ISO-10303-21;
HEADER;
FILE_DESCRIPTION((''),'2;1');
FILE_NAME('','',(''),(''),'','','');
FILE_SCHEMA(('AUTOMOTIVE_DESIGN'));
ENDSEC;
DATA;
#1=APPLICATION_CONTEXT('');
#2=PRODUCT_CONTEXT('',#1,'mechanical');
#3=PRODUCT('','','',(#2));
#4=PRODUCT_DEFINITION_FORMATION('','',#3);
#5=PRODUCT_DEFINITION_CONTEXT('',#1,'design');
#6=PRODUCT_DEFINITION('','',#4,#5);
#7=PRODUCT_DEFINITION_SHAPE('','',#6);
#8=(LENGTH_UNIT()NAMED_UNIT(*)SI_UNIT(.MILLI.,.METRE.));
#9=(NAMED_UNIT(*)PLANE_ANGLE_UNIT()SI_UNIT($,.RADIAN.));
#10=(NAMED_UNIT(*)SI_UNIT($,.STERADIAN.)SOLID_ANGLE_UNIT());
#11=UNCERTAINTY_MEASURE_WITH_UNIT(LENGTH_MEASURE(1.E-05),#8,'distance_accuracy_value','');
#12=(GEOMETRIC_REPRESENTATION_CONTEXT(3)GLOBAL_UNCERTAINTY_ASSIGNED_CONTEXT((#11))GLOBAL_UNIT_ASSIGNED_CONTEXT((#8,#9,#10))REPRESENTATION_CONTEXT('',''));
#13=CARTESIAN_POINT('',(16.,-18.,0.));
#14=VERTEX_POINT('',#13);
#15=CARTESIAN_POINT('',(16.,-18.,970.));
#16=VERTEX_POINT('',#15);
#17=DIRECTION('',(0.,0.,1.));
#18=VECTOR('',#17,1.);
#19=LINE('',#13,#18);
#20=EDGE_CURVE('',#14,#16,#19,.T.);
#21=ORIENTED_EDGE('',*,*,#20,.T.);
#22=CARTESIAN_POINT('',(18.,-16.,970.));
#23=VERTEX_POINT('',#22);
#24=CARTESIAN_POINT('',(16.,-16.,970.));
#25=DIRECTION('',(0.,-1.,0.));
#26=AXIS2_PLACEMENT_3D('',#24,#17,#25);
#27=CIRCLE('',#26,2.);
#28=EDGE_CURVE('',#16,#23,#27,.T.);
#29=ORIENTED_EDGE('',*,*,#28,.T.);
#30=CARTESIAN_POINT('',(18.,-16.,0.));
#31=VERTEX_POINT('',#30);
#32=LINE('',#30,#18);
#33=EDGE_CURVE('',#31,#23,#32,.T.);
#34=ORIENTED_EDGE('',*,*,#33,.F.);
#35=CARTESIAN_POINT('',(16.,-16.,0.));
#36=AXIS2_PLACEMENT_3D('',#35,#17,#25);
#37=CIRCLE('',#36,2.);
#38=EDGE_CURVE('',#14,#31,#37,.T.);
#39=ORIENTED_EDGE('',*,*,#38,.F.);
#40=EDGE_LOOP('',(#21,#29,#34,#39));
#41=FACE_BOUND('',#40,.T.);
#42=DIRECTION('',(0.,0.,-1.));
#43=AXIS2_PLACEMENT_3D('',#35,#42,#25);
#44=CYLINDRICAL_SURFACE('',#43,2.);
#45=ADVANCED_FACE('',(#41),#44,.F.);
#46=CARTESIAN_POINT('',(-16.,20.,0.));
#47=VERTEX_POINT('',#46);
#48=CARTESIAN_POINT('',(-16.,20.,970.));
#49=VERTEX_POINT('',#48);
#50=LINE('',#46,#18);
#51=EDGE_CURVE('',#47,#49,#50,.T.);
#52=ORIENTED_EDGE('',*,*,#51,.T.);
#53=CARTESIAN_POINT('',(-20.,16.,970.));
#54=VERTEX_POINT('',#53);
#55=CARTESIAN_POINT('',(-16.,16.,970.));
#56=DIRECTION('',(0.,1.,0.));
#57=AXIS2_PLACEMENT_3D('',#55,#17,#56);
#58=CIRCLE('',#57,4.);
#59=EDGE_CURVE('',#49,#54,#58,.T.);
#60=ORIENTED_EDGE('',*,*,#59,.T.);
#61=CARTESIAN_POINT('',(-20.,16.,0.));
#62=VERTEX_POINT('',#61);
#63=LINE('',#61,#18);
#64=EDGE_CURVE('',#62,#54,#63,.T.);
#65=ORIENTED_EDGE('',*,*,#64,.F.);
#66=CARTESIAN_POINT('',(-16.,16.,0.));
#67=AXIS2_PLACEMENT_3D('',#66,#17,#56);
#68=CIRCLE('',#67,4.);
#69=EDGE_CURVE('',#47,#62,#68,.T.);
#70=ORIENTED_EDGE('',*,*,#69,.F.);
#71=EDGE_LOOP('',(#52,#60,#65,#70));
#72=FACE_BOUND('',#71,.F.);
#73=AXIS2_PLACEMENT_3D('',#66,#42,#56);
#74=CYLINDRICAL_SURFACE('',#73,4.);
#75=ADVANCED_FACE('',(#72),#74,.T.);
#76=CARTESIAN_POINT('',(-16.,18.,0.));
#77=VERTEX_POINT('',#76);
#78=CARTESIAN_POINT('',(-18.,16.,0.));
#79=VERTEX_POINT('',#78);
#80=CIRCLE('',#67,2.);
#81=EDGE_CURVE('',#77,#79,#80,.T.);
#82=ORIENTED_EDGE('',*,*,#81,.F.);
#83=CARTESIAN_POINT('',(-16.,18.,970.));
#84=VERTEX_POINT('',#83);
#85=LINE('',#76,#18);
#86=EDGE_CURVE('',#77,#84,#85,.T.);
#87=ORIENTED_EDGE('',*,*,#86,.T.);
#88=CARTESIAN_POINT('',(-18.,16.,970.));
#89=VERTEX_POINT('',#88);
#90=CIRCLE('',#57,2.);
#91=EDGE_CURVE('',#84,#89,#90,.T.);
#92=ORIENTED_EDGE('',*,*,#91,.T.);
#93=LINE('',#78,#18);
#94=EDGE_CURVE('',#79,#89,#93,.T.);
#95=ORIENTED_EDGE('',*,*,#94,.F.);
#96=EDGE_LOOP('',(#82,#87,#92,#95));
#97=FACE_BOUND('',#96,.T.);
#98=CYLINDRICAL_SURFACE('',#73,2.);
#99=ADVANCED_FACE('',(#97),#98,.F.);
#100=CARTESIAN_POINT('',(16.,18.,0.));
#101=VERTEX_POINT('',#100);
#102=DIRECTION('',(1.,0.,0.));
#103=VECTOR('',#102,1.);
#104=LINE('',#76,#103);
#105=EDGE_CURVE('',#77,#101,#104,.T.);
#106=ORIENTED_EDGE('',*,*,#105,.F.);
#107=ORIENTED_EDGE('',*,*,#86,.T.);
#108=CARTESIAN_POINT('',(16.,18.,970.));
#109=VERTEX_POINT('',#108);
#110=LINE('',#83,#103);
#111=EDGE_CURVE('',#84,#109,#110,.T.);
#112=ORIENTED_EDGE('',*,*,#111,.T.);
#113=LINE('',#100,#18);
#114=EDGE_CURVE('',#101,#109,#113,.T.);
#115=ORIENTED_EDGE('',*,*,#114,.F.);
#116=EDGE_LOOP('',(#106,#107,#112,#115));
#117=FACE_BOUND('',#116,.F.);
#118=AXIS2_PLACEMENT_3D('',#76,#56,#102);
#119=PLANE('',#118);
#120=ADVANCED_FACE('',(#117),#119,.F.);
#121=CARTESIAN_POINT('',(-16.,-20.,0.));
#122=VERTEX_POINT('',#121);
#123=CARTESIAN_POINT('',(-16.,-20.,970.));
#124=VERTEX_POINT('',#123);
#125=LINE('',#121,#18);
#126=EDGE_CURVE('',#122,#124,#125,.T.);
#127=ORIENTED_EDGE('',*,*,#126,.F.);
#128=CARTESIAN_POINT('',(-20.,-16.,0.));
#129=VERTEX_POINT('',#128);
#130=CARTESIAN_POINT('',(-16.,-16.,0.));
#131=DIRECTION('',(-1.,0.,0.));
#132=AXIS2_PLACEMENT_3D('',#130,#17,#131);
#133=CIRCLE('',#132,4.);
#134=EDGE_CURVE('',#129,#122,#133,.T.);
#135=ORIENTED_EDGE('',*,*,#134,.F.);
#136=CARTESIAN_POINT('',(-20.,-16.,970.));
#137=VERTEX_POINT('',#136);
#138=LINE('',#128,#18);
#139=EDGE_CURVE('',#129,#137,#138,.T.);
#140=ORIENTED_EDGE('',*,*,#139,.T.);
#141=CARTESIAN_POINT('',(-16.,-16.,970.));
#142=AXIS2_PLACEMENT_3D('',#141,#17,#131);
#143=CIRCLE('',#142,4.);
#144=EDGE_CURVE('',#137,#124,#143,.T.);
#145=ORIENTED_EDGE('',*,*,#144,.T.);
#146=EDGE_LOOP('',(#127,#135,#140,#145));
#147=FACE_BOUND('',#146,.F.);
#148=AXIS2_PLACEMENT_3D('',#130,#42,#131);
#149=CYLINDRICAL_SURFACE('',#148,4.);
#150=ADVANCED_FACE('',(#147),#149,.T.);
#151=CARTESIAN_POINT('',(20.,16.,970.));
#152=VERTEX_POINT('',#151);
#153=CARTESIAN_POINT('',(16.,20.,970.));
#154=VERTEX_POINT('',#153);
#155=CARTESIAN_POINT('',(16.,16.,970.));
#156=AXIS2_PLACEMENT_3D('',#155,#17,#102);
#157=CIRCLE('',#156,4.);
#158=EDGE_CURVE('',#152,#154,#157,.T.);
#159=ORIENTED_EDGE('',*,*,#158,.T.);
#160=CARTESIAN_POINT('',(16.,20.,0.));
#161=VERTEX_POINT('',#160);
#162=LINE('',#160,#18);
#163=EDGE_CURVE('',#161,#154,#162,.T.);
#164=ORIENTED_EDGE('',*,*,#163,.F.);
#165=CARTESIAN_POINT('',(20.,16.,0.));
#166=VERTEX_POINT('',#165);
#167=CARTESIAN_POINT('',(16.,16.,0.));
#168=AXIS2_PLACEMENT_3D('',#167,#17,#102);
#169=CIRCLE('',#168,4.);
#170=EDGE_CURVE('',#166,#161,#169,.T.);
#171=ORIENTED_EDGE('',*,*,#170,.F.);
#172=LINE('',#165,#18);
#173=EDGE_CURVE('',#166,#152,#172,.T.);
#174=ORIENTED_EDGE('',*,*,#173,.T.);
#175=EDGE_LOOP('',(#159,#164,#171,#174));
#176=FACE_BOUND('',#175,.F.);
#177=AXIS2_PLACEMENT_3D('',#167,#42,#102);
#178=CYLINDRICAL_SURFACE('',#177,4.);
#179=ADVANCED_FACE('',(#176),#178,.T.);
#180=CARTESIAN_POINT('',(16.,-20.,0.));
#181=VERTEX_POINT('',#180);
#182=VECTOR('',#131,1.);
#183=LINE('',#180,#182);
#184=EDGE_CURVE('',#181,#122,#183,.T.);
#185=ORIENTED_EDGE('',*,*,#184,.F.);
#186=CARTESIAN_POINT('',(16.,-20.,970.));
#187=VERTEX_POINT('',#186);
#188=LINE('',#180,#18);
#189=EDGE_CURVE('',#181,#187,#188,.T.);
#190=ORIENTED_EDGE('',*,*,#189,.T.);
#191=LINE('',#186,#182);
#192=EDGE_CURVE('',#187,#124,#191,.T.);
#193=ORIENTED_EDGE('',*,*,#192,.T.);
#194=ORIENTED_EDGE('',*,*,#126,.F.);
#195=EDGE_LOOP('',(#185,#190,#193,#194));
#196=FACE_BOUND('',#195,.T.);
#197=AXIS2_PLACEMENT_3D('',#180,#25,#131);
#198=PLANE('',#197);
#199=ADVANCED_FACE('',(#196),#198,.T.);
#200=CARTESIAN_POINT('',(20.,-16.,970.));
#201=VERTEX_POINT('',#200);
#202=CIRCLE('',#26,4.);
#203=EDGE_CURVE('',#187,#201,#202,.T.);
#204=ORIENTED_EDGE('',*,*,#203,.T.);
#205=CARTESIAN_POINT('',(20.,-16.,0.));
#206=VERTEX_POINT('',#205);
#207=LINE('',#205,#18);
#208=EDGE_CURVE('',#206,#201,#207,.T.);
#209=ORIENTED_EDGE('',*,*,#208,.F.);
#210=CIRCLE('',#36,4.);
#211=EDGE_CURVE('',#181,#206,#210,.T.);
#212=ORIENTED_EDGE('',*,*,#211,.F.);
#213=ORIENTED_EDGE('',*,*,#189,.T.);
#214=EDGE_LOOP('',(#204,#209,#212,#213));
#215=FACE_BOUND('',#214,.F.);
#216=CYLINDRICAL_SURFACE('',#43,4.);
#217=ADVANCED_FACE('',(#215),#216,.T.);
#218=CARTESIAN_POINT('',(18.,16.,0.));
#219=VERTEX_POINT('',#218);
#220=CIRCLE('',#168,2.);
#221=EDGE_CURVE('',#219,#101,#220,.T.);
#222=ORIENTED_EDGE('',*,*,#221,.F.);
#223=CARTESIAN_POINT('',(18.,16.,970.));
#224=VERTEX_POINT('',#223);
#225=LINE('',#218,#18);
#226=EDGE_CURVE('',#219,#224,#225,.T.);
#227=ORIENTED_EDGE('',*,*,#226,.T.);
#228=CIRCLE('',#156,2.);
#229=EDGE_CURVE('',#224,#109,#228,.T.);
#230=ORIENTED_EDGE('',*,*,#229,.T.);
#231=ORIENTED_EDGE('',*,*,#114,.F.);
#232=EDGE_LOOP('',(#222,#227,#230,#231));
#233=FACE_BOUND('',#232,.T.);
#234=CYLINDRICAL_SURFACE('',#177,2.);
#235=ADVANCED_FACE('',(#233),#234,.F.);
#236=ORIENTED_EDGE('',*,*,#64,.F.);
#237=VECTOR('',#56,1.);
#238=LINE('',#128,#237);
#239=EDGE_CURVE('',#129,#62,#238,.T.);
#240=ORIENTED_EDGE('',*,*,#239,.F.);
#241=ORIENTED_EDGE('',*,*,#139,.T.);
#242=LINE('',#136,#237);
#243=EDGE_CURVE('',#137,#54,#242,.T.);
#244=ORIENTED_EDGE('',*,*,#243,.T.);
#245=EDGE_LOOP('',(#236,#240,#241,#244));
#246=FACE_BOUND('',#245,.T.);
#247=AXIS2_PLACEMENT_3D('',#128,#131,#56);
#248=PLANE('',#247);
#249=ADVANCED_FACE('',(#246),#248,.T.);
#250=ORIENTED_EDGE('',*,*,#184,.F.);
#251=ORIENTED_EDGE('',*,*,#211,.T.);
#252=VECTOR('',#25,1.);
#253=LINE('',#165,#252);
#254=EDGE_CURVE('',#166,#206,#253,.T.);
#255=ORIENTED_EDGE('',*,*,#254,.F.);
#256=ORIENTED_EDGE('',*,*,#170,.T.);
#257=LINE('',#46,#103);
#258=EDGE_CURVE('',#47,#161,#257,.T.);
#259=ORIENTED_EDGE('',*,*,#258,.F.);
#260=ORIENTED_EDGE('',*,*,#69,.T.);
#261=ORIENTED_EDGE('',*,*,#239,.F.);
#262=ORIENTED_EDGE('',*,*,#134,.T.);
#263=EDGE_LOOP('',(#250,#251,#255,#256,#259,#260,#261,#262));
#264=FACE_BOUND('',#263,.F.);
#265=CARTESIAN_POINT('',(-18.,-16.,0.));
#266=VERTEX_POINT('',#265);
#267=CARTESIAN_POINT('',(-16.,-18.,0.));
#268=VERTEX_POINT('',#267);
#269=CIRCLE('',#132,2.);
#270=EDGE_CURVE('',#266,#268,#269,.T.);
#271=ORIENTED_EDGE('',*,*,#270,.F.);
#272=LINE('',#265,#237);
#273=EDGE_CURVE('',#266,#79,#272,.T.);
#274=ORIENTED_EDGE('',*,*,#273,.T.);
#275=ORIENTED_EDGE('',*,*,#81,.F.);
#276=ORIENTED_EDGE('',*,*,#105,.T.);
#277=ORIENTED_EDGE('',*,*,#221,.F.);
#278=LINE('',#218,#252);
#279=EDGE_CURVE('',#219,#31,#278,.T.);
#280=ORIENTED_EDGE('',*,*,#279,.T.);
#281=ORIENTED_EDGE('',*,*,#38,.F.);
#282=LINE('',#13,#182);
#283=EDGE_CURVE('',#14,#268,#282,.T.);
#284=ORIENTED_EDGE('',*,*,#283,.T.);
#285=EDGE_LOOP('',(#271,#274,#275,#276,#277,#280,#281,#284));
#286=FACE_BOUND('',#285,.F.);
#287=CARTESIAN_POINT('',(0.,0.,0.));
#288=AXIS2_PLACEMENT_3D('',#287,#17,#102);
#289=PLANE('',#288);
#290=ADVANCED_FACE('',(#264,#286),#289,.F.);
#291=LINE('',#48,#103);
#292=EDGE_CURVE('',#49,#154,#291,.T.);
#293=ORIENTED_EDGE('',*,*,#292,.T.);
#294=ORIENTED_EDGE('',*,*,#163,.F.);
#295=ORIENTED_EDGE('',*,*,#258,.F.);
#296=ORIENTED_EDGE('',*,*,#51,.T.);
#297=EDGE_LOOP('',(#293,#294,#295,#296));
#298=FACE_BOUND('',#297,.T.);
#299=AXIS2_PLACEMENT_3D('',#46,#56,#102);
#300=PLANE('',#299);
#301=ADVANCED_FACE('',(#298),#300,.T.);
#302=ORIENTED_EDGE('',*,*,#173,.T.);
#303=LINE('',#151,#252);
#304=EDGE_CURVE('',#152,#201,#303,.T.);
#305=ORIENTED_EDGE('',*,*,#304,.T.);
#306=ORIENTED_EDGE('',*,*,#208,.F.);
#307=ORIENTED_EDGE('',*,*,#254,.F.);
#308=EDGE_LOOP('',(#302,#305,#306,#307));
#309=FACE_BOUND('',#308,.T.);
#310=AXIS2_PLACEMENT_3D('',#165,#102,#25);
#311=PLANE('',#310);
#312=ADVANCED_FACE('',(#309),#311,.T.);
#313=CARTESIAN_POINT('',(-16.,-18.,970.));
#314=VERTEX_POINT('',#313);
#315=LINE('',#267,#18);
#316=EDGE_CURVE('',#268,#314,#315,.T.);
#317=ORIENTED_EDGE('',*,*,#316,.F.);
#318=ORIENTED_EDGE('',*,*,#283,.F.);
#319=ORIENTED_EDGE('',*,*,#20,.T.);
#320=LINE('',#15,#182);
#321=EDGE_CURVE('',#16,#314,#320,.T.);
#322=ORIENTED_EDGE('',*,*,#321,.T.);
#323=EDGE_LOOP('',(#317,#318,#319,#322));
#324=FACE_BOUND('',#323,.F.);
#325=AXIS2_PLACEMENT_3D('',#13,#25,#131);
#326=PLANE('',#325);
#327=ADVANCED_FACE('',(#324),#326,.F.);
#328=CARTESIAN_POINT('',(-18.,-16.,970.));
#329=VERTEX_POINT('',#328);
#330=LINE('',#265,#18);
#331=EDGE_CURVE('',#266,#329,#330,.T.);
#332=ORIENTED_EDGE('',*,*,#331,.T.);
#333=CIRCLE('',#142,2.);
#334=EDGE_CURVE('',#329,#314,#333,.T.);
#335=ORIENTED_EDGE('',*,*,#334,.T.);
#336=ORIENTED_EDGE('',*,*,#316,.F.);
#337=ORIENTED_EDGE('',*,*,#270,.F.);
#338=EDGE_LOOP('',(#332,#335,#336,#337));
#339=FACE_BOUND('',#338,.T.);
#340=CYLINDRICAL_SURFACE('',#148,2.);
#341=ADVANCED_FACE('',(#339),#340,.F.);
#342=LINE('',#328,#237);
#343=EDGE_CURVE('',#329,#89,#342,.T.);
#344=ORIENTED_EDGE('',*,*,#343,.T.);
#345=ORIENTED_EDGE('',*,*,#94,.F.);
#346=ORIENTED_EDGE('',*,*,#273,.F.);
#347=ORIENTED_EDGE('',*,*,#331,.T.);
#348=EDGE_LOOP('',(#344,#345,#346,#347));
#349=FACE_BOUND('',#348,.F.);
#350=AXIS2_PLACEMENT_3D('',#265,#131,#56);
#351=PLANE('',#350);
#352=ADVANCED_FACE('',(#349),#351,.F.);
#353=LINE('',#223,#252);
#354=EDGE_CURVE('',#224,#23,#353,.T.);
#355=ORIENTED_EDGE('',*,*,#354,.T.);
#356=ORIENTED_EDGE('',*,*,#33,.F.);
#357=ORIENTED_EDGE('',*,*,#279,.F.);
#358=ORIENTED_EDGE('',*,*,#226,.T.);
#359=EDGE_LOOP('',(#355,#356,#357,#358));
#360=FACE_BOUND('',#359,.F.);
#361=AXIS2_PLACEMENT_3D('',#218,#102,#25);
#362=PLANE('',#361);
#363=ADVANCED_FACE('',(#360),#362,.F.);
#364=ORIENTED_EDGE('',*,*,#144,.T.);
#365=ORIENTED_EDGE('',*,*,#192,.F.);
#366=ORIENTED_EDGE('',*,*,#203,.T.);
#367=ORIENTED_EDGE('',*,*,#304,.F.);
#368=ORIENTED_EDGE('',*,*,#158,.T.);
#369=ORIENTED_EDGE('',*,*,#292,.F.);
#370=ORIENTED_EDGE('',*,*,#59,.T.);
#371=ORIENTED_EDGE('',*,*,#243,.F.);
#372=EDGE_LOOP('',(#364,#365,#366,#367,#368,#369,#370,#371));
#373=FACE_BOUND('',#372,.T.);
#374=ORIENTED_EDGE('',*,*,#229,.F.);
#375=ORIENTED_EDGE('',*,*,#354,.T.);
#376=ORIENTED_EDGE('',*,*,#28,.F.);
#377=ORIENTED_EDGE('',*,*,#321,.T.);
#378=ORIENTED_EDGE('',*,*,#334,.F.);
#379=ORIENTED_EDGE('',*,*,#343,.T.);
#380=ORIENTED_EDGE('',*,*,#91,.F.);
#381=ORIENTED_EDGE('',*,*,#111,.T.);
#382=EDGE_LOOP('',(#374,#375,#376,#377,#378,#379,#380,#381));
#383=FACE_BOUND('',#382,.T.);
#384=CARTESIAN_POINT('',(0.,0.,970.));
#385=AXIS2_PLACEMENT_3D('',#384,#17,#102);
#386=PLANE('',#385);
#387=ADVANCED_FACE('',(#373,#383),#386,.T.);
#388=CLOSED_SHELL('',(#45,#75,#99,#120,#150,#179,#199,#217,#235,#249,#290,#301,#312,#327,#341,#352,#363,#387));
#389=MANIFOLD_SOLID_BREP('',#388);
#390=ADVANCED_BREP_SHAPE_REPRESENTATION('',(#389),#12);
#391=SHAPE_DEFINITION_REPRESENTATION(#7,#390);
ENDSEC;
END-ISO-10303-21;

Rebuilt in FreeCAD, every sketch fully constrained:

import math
import FreeCAD as App
import Part
import Sketcher
from FreeCAD import Vector
Q = App.Units.Quantity

doc = App.newDocument("Part")
body = doc.addObject("PartDesign::Body", "Body")

# Sketch on XY plane
sketch1 = body.newObject("Sketcher::SketchObject", "Sketch")
sketch1.AttachmentSupport = (doc.getObject("XY_Plane"), [""])
sketch1.MapMode = "FlatFace"
sketch1.addGeometry([
    Part.LineSegment(Vector(-20, 16, 0), Vector(-20, -16, 0)),  # 0
    Part.ArcOfCircle(Part.Circle(Vector(-16, -16, 0), Vector(0, 0, 1), 4), math.radians(180), math.radians(270)),  # 1
    Part.LineSegment(Vector(-16, -20, 0), Vector(16, -20, 0)),  # 2
    Part.ArcOfCircle(Part.Circle(Vector(16, -16, 0), Vector(0, 0, 1), 4), math.radians(-90), math.radians(0)),  # 3
    Part.LineSegment(Vector(20, -16, 0), Vector(20, 16, 0)),  # 4
    Part.ArcOfCircle(Part.Circle(Vector(16, 16, 0), Vector(0, 0, 1), 4), math.radians(0), math.radians(90)),  # 5
    Part.LineSegment(Vector(16, 20, 0), Vector(-16, 20, 0)),  # 6
    Part.ArcOfCircle(Part.Circle(Vector(-16, 16, 0), Vector(0, 0, 1), 4), math.radians(90), math.radians(180)),  # 7
    Part.ArcOfCircle(Part.Circle(Vector(-16, 16, 0), Vector(0, 0, 1), 2), math.radians(90), math.radians(180)),  # 8
    Part.LineSegment(Vector(-16, 18, 0), Vector(16, 18, 0)),  # 9
    Part.ArcOfCircle(Part.Circle(Vector(16, 16, 0), Vector(0, 0, 1), 2), math.radians(0), math.radians(90)),  # 10
    Part.LineSegment(Vector(18, 16, 0), Vector(18, -16, 0)),  # 11
    Part.ArcOfCircle(Part.Circle(Vector(16, -16, 0), Vector(0, 0, 1), 2), math.radians(-90), math.radians(0)),  # 12
    Part.LineSegment(Vector(16, -18, 0), Vector(-16, -18, 0)),  # 13
    Part.ArcOfCircle(Part.Circle(Vector(-16, -16, 0), Vector(0, 0, 1), 2), math.radians(180), math.radians(270)),  # 14
    Part.LineSegment(Vector(-18, -16, 0), Vector(-18, 16, 0)),  # 15
], False)
sketch1.addConstraint([
    Sketcher.Constraint("Tangent", 0, 2, 1, 1),
    Sketcher.Constraint("Tangent", 1, 2, 2, 1),
    Sketcher.Constraint("Tangent", 2, 2, 3, 1),
    Sketcher.Constraint("Tangent", 3, 2, 4, 1),
    Sketcher.Constraint("Tangent", 4, 2, 5, 1),
    Sketcher.Constraint("Tangent", 5, 2, 6, 1),
    Sketcher.Constraint("Tangent", 6, 2, 7, 1),
    Sketcher.Constraint("Tangent", 7, 2, 0, 1),
    Sketcher.Constraint("Tangent", 8, 1, 9, 1),
    Sketcher.Constraint("Tangent", 9, 2, 10, 2),
    Sketcher.Constraint("Tangent", 10, 1, 11, 1),
    Sketcher.Constraint("Tangent", 11, 2, 12, 2),
    Sketcher.Constraint("Tangent", 12, 1, 13, 1),
    Sketcher.Constraint("Tangent", 13, 2, 14, 2),
    Sketcher.Constraint("Tangent", 14, 1, 15, 1),
    Sketcher.Constraint("Tangent", 15, 2, 8, 2),
    Sketcher.Constraint("Vertical", 0),
    Sketcher.Constraint("Horizontal", 2),
    Sketcher.Constraint("Vertical", 4),
    Sketcher.Constraint("Horizontal", 6),
    Sketcher.Constraint("Horizontal", 9),
    Sketcher.Constraint("Vertical", 11),
    Sketcher.Constraint("Horizontal", 13),
    Sketcher.Constraint("Vertical", 15),
    Sketcher.Constraint("Coincident", 8, 3, 7, 3),
    Sketcher.Constraint("Coincident", 10, 3, 5, 3),
    Sketcher.Constraint("Coincident", 12, 3, 3, 3),
    Sketcher.Constraint("Equal", 1, 3),
    Sketcher.Constraint("Equal", 3, 5),
    Sketcher.Constraint("Equal", 5, 7),
    Sketcher.Constraint("Equal", 12, 14),
    Sketcher.Constraint("Symmetric", 1, 3, 5, 3, -1, 1),
    Sketcher.Constraint("Equal", 13, 0),
    Sketcher.Constraint("Radius", 1, Q("4 mm")),
    Sketcher.Constraint("Radius", 8, Q("2 mm")),
    Sketcher.Constraint("DistanceX", 0, 2, -1, 1, Q("20 mm")),
])
pad1 = body.newObject("PartDesign::Pad", "Pad")
pad1.Profile = sketch1
pad1.Length = 970

doc.recompute()
